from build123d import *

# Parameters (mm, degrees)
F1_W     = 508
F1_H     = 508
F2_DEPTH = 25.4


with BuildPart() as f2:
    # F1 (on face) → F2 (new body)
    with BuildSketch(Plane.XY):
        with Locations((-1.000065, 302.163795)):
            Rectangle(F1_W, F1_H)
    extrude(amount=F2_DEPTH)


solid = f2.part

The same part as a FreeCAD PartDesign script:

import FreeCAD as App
import Part
import Sketcher
Q = App.Units.Quantity


def add_polygon(sketch, points):
    """Adds a closed chain of lines whose ends are joined by coincident constraints."""
    first, n = sketch.GeometryCount, len(points)
    for a, b in zip(points, points[1:] + points[:1]):
        sketch.addGeometry(Part.LineSegment(App.Vector(*a, 0), App.Vector(*b, 0)), False)
    for i in range(n):
        sketch.addConstraint(Sketcher.Constraint("Coincident", first + i, 2, first + (i + 1) % n, 1))

doc = App.newDocument("Part")
body = doc.addObject("PartDesign::Body", "Body")

# Sketch on XY plane
sketch1 = body.newObject("Sketcher::SketchObject", "Sketch")
sketch1.AttachmentSupport = (doc.getObject("XY_Plane"), [""])
sketch1.MapMode = "FlatFace"
add_polygon(sketch1, [(-255, 556), (-255, 48), (253, 48), (253, 556)])  # lines 0-3
sketch1.addConstraint([
    Sketcher.Constraint("Vertical", 0),
    Sketcher.Constraint("Horizontal", 1),
    Sketcher.Constraint("Vertical", 2),
    Sketcher.Constraint("Horizontal", 3),
    Sketcher.Constraint("Equal", 3, 0),
    Sketcher.Constraint("DistanceX", 1, 1, 1, 2, Q("20 in")),
    Sketcher.Constraint("DistanceX", 0, 2, -1, 1, 255.000065),
    Sketcher.Constraint("DistanceY", -1, 1, 0, 2, 48.163795),
])
pad1 = body.newObject("PartDesign::Pad", "Pad")
pad1.Profile = sketch1
pad1.Length = Q("1 in")

doc.recompute()
